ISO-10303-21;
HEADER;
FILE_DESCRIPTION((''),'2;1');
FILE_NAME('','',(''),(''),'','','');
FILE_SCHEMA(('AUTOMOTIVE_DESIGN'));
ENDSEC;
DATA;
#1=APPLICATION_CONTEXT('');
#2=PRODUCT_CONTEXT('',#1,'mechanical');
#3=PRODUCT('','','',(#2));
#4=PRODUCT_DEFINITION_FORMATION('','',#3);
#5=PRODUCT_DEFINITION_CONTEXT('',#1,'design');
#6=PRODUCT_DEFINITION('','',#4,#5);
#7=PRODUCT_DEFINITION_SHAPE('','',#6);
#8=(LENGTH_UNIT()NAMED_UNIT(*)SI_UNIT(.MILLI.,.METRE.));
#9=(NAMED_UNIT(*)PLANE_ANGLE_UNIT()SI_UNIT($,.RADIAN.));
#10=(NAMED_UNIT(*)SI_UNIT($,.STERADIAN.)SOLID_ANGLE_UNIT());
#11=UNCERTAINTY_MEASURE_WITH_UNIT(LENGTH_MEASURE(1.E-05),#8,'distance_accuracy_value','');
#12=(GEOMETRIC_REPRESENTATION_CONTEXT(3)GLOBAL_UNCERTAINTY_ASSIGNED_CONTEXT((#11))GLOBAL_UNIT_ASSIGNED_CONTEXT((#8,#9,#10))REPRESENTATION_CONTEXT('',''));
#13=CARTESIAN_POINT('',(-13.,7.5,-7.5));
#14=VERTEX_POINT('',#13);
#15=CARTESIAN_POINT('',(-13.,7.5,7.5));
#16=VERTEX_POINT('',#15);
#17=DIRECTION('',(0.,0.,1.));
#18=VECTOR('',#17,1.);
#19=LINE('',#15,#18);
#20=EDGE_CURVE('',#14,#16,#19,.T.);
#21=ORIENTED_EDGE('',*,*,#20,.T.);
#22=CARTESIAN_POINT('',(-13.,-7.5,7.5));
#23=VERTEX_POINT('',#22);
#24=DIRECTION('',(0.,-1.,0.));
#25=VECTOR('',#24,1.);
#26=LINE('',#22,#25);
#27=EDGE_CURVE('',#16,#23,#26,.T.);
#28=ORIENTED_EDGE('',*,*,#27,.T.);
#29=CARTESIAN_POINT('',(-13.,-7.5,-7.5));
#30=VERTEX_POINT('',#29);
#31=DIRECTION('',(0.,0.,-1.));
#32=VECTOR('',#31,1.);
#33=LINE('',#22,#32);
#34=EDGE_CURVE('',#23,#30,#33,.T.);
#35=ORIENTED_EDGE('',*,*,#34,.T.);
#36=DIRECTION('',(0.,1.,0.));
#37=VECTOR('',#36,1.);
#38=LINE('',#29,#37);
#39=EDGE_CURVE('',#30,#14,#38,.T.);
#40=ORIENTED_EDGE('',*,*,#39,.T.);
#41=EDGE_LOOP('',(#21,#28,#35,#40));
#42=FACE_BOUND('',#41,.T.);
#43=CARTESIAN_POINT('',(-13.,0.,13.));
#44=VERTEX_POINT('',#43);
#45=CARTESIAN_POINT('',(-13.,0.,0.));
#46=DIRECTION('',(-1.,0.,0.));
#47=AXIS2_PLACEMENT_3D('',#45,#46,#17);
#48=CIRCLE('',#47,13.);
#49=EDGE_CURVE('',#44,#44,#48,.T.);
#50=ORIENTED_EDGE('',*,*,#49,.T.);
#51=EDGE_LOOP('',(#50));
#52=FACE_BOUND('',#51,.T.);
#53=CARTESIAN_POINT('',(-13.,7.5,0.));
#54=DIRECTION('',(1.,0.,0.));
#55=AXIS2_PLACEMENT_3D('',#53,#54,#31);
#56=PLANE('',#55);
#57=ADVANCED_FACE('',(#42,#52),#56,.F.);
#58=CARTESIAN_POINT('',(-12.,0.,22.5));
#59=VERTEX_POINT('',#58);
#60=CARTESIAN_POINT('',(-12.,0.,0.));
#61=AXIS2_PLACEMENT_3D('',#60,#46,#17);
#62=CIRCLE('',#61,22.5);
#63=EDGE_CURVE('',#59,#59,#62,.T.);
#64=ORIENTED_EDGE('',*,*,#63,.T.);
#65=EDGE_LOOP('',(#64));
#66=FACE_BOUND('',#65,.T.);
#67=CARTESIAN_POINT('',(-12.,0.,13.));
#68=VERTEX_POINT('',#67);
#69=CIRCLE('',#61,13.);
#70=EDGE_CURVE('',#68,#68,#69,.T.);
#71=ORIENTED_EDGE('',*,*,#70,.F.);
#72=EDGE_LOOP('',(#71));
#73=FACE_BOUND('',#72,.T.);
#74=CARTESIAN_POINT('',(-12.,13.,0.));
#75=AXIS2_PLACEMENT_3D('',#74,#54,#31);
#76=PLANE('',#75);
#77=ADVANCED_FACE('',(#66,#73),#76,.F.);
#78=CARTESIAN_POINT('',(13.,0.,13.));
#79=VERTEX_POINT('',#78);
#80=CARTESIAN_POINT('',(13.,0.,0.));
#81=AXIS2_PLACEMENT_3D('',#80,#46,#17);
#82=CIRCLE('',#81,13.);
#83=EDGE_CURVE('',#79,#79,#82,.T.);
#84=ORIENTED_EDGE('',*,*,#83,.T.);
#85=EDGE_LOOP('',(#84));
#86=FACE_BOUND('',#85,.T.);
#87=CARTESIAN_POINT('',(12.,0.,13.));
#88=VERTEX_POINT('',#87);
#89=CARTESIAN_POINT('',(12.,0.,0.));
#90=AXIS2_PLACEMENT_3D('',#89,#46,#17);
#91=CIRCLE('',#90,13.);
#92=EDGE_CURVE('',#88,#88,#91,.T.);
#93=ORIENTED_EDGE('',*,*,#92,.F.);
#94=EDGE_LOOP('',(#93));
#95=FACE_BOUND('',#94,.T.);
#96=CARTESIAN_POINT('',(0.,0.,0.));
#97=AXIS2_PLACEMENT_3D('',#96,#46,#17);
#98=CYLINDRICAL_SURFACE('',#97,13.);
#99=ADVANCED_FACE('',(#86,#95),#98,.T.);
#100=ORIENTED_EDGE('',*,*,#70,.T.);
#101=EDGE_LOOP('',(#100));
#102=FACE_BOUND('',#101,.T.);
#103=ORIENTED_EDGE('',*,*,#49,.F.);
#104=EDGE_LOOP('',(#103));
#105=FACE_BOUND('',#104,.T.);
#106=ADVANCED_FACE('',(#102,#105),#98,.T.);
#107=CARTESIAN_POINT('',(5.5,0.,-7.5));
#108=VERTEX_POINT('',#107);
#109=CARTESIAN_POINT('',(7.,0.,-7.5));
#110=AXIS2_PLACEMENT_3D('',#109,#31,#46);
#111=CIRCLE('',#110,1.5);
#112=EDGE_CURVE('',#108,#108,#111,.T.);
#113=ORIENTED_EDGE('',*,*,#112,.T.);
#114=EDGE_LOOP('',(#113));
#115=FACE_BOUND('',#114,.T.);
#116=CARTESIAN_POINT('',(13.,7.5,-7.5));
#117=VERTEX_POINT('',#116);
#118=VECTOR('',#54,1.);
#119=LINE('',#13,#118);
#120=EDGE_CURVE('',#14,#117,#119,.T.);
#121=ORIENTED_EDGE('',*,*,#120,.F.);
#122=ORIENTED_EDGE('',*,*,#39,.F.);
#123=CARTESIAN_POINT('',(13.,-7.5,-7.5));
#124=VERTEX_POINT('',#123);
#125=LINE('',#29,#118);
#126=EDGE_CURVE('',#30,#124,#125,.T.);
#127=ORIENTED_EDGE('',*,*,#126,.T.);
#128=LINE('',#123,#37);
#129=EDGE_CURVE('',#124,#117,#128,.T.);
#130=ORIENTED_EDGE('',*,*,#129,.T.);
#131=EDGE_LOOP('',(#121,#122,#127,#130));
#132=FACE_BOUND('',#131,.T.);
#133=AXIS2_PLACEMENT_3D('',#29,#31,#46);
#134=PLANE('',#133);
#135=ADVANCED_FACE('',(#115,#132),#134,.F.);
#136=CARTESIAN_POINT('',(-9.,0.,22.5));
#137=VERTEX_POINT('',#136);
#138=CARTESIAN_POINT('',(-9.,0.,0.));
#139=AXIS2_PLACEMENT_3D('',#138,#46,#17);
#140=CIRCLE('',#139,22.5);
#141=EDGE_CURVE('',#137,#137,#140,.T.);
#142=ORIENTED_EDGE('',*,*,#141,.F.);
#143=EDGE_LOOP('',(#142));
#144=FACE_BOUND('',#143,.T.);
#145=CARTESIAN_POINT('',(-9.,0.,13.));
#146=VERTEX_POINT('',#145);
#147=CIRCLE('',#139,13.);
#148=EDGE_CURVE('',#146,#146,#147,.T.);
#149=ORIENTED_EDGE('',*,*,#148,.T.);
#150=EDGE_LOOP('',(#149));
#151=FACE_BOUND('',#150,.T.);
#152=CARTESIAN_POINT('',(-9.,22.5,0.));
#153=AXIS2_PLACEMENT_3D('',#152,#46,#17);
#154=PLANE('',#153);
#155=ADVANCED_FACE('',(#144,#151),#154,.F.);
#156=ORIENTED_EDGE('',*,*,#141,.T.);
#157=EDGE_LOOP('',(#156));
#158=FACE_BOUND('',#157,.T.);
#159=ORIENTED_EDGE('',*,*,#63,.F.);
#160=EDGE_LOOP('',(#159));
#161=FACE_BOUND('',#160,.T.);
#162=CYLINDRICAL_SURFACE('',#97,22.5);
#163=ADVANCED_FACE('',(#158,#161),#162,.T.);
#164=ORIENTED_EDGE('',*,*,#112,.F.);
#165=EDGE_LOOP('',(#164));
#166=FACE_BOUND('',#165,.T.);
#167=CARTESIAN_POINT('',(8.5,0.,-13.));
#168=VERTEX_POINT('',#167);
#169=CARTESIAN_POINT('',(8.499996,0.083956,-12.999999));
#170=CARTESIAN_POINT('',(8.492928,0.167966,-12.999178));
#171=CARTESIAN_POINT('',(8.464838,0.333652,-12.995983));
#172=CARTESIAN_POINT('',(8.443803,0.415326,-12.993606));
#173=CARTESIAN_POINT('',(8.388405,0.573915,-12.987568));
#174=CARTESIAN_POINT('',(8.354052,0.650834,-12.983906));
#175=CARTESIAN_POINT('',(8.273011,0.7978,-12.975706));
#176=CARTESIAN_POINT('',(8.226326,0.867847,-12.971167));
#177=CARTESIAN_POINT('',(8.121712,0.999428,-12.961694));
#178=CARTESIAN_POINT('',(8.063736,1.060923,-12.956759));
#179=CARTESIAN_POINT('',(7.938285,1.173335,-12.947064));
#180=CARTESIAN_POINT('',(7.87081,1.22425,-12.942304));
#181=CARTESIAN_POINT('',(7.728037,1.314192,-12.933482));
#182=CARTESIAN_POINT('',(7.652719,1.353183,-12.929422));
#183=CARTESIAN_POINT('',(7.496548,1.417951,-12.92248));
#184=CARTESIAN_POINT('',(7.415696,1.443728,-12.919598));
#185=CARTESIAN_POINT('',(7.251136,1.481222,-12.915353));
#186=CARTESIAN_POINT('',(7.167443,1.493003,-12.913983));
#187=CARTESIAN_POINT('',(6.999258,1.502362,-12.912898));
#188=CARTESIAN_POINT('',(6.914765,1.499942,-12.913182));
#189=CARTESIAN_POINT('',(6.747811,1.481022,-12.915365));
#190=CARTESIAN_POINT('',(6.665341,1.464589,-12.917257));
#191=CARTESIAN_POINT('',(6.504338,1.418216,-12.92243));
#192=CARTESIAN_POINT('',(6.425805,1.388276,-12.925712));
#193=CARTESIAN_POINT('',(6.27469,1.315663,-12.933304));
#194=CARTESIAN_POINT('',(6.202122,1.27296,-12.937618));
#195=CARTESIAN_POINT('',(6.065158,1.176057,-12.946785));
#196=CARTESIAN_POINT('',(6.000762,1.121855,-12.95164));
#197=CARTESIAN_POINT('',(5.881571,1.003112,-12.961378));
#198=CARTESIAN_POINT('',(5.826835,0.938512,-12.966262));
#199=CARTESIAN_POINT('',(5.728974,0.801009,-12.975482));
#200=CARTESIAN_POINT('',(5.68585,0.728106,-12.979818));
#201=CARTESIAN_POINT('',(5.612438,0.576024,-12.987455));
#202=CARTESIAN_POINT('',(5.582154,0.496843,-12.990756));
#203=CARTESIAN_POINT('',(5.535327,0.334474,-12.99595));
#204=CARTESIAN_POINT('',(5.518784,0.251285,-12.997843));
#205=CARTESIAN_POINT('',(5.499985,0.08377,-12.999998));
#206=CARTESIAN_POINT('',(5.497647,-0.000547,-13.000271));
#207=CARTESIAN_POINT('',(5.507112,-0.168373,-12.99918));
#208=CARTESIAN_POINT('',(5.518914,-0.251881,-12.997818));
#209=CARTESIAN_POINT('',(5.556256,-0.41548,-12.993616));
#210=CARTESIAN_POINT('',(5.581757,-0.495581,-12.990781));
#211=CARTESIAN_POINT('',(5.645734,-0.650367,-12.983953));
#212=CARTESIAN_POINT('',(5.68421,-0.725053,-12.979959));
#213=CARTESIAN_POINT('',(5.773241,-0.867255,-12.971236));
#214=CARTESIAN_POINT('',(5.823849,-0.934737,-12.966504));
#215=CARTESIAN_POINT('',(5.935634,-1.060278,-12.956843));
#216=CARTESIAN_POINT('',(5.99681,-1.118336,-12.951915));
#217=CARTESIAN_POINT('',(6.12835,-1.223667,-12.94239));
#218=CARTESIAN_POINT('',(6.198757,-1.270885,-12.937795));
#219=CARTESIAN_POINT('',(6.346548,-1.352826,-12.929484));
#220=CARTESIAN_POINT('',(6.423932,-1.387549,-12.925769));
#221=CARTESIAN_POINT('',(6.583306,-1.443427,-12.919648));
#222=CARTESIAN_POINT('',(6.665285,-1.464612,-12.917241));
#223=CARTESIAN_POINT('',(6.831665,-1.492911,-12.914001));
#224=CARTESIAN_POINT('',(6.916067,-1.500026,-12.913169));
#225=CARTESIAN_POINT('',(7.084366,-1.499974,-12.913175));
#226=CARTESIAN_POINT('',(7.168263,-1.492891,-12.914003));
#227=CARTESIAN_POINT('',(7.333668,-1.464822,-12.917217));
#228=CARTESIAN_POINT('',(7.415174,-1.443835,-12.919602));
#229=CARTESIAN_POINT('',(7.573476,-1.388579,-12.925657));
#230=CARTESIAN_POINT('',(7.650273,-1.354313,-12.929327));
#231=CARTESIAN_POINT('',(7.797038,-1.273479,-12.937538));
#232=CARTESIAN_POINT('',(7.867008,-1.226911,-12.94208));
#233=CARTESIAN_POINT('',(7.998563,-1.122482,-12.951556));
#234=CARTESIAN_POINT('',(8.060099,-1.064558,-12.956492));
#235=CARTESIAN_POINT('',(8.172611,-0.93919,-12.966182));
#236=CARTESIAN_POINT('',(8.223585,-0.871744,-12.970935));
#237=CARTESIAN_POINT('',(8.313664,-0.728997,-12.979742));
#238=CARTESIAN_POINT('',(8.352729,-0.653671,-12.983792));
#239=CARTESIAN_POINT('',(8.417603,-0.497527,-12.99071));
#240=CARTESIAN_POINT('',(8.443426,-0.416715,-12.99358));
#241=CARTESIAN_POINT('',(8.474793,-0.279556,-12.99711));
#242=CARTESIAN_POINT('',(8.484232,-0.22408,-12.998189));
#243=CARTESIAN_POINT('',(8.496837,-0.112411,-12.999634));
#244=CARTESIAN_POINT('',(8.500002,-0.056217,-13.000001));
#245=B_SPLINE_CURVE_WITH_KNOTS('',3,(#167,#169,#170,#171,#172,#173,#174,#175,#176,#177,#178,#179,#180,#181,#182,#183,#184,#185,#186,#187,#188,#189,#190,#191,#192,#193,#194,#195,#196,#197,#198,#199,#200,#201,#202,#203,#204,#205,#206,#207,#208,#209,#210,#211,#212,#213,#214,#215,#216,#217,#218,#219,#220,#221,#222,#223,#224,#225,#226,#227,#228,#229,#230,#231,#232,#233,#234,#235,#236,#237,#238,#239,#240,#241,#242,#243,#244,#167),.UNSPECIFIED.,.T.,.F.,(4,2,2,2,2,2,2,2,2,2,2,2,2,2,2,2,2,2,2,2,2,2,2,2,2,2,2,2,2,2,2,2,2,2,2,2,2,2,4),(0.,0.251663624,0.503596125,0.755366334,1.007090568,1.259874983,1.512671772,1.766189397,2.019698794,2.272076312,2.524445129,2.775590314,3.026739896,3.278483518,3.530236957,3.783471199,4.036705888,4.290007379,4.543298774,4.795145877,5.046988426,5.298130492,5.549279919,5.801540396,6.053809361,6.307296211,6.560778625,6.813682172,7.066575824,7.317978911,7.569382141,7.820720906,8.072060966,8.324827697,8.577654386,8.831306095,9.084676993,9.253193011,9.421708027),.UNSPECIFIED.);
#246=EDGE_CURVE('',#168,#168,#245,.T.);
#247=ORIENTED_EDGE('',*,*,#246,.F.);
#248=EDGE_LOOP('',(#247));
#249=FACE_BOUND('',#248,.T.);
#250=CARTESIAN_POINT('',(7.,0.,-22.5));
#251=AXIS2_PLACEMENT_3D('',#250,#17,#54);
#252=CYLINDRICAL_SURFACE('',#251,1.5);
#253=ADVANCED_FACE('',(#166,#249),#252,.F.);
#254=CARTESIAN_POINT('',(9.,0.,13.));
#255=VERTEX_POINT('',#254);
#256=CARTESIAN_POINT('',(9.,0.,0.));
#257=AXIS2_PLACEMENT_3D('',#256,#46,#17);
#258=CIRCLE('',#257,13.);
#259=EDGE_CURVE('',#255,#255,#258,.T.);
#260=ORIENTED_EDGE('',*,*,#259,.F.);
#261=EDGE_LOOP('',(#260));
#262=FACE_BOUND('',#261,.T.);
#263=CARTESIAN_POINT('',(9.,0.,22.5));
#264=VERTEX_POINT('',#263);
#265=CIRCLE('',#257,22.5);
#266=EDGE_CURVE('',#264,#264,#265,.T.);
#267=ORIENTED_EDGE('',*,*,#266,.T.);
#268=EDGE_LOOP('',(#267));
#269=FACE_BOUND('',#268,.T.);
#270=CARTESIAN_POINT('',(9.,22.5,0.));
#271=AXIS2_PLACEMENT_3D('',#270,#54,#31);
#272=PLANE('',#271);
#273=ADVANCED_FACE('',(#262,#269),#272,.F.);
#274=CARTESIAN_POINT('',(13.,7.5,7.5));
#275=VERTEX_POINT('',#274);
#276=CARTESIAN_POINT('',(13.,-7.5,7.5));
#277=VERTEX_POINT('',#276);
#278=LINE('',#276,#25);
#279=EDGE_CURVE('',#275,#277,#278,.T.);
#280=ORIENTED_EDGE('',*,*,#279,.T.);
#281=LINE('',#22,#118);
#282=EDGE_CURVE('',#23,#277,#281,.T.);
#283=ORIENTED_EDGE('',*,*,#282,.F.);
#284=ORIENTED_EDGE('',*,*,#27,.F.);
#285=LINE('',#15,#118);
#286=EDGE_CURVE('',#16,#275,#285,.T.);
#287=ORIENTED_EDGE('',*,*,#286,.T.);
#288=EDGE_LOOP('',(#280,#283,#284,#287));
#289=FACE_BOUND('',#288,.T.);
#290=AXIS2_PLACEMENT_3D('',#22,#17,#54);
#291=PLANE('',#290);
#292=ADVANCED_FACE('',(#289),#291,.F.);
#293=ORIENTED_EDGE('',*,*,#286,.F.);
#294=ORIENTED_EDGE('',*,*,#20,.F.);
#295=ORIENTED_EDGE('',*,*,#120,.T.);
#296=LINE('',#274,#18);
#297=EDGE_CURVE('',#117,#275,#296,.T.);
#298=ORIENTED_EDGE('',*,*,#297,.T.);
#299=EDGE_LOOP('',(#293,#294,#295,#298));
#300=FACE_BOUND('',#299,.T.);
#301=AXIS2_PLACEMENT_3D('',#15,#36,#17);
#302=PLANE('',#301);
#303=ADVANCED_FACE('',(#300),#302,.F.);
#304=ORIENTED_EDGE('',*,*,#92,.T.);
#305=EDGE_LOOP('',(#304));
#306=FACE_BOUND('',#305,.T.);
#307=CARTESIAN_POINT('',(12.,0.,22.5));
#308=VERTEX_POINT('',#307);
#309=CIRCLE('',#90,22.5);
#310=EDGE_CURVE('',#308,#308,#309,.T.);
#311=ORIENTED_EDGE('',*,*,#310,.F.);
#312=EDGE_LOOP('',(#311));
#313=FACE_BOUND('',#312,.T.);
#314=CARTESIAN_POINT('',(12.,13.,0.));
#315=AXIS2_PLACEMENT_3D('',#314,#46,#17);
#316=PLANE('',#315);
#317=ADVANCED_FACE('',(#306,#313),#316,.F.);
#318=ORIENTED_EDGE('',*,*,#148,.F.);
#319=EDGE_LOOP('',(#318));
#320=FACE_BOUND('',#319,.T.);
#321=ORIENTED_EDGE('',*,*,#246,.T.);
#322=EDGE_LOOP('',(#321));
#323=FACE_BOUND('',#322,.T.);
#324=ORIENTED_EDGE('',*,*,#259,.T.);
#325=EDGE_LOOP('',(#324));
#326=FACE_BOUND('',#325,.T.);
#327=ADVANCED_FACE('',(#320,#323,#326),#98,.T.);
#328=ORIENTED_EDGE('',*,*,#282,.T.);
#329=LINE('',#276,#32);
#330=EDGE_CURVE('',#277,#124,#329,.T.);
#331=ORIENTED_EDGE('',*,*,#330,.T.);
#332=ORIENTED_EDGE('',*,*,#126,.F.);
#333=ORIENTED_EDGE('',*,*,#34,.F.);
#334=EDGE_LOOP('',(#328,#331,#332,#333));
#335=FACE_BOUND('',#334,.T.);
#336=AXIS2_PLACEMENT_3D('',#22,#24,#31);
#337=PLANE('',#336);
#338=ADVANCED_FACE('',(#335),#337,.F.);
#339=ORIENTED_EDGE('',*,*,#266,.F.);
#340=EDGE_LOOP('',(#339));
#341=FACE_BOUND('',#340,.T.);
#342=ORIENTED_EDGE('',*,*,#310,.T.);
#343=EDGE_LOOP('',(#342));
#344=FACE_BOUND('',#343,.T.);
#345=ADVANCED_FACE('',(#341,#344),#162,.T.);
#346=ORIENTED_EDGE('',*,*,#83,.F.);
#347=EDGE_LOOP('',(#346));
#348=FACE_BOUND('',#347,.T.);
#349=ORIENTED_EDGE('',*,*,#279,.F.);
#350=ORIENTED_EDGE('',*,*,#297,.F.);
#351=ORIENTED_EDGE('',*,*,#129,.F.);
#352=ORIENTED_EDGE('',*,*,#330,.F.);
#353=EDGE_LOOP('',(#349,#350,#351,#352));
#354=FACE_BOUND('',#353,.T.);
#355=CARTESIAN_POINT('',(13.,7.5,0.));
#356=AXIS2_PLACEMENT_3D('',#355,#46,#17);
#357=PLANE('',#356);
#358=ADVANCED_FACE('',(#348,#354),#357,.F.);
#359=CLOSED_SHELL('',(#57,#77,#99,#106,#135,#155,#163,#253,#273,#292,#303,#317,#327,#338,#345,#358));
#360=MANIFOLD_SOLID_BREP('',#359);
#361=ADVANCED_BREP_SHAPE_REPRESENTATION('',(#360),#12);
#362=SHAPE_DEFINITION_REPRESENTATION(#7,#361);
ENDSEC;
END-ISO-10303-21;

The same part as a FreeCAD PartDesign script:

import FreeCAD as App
import Part
import Sketcher
from FreeCAD import Vector

doc = App.newDocument("Part")
body = doc.addObject("PartDesign::Body", "Body")

# Sketch on XY plane
sketch1 = body.newObject("Sketcher::SketchObject", "Sketch")
sketch1.AttachmentSupport = (doc.getObject("XY_Plane"), [""])
sketch1.MapMode = "FlatFace"
sketch1.addGeometry([
    Part.LineSegment(Vector(-13, 7.5, 0), Vector(13, 7.5, 0)),  # 0
    Part.LineSegment(Vector(13, 7.5, 0), Vector(13, 13, 0)),  # 1
    Part.LineSegment(Vector(13, 13, 0), Vector(12, 13, 0)),  # 2
    Part.LineSegment(Vector(12, 13, 0), Vector(12, 22.5, 0)),  # 3
    Part.LineSegment(Vector(12, 22.5, 0), Vector(9, 22.5, 0)),  # 4
    Part.LineSegment(Vector(9, 22.5, 0), Vector(9, 13, 0)),  # 5
    Part.LineSegment(Vector(9, 13, 0), Vector(-9, 13, 0)),  # 6
    Part.LineSegment(Vector(-9, 13, 0), Vector(-9, 22.5, 0)),  # 7
    Part.LineSegment(Vector(-9, 22.5, 0), Vector(-12, 22.5, 0)),  # 8
    Part.LineSegment(Vector(-12, 22.5, 0), Vector(-12, 13, 0)),  # 9
    Part.LineSegment(Vector(-12, 13, 0), Vector(-13, 13, 0)),  # 10
    Part.LineSegment(Vector(-13, 13, 0), Vector(-13, 7.5, 0)),  # 11
], False)
sketch1.addConstraint([
    Sketcher.Constraint("Coincident", 0, 2, 1, 1),
    Sketcher.Constraint("Coincident", 1, 2, 2, 1),
    Sketcher.Constraint("Coincident", 2, 2, 3, 1),
    Sketcher.Constraint("Coincident", 3, 2, 4, 1),
    Sketcher.Constraint("Coincident", 4, 2, 5, 1),
    Sketcher.Constraint("Coincident", 5, 2, 6, 1),
    Sketcher.Constraint("Coincident", 6, 2, 7, 1),
    Sketcher.Constraint("Coincident", 7, 2, 8, 1),
    Sketcher.Constraint("Coincident", 8, 2, 9, 1),
    Sketcher.Constraint("Coincident", 9, 2, 10, 1),
    Sketcher.Constraint("Coincident", 10, 2, 11, 1),
    Sketcher.Constraint("Coincident", 11, 2, 0, 1),
    Sketcher.Constraint("Horizontal", 0),
    Sketcher.Constraint("Vertical", 1),
    Sketcher.Constraint("Horizontal", 2),
    Sketcher.Constraint("Vertical", 3),
    Sketcher.Constraint("Horizontal", 4),
    Sketcher.Constraint("Vertical", 5),
    Sketcher.Constraint("Horizontal", 6),
    Sketcher.Constraint("Vertical", 7),
    Sketcher.Constraint("Horizontal", 8),
    Sketcher.Constraint("Vertical", 9),
    Sketcher.Constraint("Horizontal", 10),
    Sketcher.Constraint("Vertical", 11),
    Sketcher.Constraint("Symmetric", 4, 2, 7, 2, -2),
    Sketcher.Constraint("Symmetric", 2, 2, 9, 2, -2),
    Sketcher.Constraint("Horizontal", 2, 2, 5, 2),
    Sketcher.Constraint("Equal", 2, 10),
    Sketcher.Constraint("DistanceX", 0, 1, 0, 2, 26.0),
    Sketcher.Constraint("DistanceX", 2, 2, 2, 1, 1.0),
    Sketcher.Constraint("DistanceX", 4, 2, 4, 1, 3.0),
    Sketcher.Constraint("DistanceY", 1, 1, 1, 2, 5.5),
    Sketcher.Constraint("DistanceY", 3, 1, 3, 2, 9.5),
    Sketcher.Constraint("DistanceY", -1, 1, 1, 2, 13.0),
])
revolution = body.newObject("PartDesign::Revolution", "Revolution")
revolution.Profile = sketch1
revolution.ReferenceAxis = (sketch1, ["H_Axis"])
revolution.Angle = 360

# Sketch on YZ plane
sketch2 = body.newObject("Sketcher::SketchObject", "Sketch001")
sketch2.AttachmentSupport = (doc.getObject("YZ_Plane"), [""])
sketch2.MapMode = "FlatFace"
sketch2.AttachmentOffset = App.Placement(Vector(0, 0, 13), App.Rotation())
sketch2.addGeometry([
    Part.LineSegment(Vector(7.5, 7.5, 0), Vector(-7.5, 7.5, 0)),
    Part.LineSegment(Vector(-7.5, 7.5, 0), Vector(-7.5, -7.5, 0)),
    Part.LineSegment(Vector(-7.5, -7.5, 0), Vector(7.5, -7.5, 0)),
    Part.LineSegment(Vector(7.5, -7.5, 0), Vector(7.5, 7.5, 0)),
], False)
sketch2.addConstraint([
    Sketcher.Constraint("Coincident", 0, 2, 1, 1),
    Sketcher.Constraint("Coincident", 1, 2, 2, 1),
    Sketcher.Constraint("Coincident", 2, 2, 3, 1),
    Sketcher.Constraint("Coincident", 3, 2, 0, 1),
    Sketcher.Constraint("Horizontal", 0),
    Sketcher.Constraint("Vertical", 1),
    Sketcher.Constraint("Horizontal", 2),
    Sketcher.Constraint("Vertical", 3),
    Sketcher.Constraint("Symmetric", 0, 2, 2, 2, -1, 1),
    Sketcher.Constraint("Equal", 2, 1),
    Sketcher.Constraint("DistanceX", 0, 2, 0, 1, 15.0),
])
pocket1 = body.newObject("PartDesign::Pocket", "Pocket")
pocket1.Profile = sketch2
pocket1.Type = "ThroughAll"

# Sketch on XY plane
sketch3 = body.newObject("Sketcher::SketchObject", "Sketch002")
sketch3.AttachmentSupport = (doc.getObject("XY_Plane"), [""])
sketch3.MapMode = "FlatFace"
sketch3.addGeometry(Part.Circle(Vector(7, 0, 0), Vector(0, 0, 1), 1.5), False)
sketch3.addConstraint([
    Sketcher.Constraint("PointOnObject", 0, 3, -1),
    Sketcher.Constraint("Diameter", 0, 3.0),
    Sketcher.Constraint("DistanceX", -1, 1, 0, 3, 7.0),
])
pocket2 = body.newObject("PartDesign::Pocket", "Pocket001")
pocket2.Profile = sketch3
pocket2.Type = "ThroughAll"

doc.recompute()
